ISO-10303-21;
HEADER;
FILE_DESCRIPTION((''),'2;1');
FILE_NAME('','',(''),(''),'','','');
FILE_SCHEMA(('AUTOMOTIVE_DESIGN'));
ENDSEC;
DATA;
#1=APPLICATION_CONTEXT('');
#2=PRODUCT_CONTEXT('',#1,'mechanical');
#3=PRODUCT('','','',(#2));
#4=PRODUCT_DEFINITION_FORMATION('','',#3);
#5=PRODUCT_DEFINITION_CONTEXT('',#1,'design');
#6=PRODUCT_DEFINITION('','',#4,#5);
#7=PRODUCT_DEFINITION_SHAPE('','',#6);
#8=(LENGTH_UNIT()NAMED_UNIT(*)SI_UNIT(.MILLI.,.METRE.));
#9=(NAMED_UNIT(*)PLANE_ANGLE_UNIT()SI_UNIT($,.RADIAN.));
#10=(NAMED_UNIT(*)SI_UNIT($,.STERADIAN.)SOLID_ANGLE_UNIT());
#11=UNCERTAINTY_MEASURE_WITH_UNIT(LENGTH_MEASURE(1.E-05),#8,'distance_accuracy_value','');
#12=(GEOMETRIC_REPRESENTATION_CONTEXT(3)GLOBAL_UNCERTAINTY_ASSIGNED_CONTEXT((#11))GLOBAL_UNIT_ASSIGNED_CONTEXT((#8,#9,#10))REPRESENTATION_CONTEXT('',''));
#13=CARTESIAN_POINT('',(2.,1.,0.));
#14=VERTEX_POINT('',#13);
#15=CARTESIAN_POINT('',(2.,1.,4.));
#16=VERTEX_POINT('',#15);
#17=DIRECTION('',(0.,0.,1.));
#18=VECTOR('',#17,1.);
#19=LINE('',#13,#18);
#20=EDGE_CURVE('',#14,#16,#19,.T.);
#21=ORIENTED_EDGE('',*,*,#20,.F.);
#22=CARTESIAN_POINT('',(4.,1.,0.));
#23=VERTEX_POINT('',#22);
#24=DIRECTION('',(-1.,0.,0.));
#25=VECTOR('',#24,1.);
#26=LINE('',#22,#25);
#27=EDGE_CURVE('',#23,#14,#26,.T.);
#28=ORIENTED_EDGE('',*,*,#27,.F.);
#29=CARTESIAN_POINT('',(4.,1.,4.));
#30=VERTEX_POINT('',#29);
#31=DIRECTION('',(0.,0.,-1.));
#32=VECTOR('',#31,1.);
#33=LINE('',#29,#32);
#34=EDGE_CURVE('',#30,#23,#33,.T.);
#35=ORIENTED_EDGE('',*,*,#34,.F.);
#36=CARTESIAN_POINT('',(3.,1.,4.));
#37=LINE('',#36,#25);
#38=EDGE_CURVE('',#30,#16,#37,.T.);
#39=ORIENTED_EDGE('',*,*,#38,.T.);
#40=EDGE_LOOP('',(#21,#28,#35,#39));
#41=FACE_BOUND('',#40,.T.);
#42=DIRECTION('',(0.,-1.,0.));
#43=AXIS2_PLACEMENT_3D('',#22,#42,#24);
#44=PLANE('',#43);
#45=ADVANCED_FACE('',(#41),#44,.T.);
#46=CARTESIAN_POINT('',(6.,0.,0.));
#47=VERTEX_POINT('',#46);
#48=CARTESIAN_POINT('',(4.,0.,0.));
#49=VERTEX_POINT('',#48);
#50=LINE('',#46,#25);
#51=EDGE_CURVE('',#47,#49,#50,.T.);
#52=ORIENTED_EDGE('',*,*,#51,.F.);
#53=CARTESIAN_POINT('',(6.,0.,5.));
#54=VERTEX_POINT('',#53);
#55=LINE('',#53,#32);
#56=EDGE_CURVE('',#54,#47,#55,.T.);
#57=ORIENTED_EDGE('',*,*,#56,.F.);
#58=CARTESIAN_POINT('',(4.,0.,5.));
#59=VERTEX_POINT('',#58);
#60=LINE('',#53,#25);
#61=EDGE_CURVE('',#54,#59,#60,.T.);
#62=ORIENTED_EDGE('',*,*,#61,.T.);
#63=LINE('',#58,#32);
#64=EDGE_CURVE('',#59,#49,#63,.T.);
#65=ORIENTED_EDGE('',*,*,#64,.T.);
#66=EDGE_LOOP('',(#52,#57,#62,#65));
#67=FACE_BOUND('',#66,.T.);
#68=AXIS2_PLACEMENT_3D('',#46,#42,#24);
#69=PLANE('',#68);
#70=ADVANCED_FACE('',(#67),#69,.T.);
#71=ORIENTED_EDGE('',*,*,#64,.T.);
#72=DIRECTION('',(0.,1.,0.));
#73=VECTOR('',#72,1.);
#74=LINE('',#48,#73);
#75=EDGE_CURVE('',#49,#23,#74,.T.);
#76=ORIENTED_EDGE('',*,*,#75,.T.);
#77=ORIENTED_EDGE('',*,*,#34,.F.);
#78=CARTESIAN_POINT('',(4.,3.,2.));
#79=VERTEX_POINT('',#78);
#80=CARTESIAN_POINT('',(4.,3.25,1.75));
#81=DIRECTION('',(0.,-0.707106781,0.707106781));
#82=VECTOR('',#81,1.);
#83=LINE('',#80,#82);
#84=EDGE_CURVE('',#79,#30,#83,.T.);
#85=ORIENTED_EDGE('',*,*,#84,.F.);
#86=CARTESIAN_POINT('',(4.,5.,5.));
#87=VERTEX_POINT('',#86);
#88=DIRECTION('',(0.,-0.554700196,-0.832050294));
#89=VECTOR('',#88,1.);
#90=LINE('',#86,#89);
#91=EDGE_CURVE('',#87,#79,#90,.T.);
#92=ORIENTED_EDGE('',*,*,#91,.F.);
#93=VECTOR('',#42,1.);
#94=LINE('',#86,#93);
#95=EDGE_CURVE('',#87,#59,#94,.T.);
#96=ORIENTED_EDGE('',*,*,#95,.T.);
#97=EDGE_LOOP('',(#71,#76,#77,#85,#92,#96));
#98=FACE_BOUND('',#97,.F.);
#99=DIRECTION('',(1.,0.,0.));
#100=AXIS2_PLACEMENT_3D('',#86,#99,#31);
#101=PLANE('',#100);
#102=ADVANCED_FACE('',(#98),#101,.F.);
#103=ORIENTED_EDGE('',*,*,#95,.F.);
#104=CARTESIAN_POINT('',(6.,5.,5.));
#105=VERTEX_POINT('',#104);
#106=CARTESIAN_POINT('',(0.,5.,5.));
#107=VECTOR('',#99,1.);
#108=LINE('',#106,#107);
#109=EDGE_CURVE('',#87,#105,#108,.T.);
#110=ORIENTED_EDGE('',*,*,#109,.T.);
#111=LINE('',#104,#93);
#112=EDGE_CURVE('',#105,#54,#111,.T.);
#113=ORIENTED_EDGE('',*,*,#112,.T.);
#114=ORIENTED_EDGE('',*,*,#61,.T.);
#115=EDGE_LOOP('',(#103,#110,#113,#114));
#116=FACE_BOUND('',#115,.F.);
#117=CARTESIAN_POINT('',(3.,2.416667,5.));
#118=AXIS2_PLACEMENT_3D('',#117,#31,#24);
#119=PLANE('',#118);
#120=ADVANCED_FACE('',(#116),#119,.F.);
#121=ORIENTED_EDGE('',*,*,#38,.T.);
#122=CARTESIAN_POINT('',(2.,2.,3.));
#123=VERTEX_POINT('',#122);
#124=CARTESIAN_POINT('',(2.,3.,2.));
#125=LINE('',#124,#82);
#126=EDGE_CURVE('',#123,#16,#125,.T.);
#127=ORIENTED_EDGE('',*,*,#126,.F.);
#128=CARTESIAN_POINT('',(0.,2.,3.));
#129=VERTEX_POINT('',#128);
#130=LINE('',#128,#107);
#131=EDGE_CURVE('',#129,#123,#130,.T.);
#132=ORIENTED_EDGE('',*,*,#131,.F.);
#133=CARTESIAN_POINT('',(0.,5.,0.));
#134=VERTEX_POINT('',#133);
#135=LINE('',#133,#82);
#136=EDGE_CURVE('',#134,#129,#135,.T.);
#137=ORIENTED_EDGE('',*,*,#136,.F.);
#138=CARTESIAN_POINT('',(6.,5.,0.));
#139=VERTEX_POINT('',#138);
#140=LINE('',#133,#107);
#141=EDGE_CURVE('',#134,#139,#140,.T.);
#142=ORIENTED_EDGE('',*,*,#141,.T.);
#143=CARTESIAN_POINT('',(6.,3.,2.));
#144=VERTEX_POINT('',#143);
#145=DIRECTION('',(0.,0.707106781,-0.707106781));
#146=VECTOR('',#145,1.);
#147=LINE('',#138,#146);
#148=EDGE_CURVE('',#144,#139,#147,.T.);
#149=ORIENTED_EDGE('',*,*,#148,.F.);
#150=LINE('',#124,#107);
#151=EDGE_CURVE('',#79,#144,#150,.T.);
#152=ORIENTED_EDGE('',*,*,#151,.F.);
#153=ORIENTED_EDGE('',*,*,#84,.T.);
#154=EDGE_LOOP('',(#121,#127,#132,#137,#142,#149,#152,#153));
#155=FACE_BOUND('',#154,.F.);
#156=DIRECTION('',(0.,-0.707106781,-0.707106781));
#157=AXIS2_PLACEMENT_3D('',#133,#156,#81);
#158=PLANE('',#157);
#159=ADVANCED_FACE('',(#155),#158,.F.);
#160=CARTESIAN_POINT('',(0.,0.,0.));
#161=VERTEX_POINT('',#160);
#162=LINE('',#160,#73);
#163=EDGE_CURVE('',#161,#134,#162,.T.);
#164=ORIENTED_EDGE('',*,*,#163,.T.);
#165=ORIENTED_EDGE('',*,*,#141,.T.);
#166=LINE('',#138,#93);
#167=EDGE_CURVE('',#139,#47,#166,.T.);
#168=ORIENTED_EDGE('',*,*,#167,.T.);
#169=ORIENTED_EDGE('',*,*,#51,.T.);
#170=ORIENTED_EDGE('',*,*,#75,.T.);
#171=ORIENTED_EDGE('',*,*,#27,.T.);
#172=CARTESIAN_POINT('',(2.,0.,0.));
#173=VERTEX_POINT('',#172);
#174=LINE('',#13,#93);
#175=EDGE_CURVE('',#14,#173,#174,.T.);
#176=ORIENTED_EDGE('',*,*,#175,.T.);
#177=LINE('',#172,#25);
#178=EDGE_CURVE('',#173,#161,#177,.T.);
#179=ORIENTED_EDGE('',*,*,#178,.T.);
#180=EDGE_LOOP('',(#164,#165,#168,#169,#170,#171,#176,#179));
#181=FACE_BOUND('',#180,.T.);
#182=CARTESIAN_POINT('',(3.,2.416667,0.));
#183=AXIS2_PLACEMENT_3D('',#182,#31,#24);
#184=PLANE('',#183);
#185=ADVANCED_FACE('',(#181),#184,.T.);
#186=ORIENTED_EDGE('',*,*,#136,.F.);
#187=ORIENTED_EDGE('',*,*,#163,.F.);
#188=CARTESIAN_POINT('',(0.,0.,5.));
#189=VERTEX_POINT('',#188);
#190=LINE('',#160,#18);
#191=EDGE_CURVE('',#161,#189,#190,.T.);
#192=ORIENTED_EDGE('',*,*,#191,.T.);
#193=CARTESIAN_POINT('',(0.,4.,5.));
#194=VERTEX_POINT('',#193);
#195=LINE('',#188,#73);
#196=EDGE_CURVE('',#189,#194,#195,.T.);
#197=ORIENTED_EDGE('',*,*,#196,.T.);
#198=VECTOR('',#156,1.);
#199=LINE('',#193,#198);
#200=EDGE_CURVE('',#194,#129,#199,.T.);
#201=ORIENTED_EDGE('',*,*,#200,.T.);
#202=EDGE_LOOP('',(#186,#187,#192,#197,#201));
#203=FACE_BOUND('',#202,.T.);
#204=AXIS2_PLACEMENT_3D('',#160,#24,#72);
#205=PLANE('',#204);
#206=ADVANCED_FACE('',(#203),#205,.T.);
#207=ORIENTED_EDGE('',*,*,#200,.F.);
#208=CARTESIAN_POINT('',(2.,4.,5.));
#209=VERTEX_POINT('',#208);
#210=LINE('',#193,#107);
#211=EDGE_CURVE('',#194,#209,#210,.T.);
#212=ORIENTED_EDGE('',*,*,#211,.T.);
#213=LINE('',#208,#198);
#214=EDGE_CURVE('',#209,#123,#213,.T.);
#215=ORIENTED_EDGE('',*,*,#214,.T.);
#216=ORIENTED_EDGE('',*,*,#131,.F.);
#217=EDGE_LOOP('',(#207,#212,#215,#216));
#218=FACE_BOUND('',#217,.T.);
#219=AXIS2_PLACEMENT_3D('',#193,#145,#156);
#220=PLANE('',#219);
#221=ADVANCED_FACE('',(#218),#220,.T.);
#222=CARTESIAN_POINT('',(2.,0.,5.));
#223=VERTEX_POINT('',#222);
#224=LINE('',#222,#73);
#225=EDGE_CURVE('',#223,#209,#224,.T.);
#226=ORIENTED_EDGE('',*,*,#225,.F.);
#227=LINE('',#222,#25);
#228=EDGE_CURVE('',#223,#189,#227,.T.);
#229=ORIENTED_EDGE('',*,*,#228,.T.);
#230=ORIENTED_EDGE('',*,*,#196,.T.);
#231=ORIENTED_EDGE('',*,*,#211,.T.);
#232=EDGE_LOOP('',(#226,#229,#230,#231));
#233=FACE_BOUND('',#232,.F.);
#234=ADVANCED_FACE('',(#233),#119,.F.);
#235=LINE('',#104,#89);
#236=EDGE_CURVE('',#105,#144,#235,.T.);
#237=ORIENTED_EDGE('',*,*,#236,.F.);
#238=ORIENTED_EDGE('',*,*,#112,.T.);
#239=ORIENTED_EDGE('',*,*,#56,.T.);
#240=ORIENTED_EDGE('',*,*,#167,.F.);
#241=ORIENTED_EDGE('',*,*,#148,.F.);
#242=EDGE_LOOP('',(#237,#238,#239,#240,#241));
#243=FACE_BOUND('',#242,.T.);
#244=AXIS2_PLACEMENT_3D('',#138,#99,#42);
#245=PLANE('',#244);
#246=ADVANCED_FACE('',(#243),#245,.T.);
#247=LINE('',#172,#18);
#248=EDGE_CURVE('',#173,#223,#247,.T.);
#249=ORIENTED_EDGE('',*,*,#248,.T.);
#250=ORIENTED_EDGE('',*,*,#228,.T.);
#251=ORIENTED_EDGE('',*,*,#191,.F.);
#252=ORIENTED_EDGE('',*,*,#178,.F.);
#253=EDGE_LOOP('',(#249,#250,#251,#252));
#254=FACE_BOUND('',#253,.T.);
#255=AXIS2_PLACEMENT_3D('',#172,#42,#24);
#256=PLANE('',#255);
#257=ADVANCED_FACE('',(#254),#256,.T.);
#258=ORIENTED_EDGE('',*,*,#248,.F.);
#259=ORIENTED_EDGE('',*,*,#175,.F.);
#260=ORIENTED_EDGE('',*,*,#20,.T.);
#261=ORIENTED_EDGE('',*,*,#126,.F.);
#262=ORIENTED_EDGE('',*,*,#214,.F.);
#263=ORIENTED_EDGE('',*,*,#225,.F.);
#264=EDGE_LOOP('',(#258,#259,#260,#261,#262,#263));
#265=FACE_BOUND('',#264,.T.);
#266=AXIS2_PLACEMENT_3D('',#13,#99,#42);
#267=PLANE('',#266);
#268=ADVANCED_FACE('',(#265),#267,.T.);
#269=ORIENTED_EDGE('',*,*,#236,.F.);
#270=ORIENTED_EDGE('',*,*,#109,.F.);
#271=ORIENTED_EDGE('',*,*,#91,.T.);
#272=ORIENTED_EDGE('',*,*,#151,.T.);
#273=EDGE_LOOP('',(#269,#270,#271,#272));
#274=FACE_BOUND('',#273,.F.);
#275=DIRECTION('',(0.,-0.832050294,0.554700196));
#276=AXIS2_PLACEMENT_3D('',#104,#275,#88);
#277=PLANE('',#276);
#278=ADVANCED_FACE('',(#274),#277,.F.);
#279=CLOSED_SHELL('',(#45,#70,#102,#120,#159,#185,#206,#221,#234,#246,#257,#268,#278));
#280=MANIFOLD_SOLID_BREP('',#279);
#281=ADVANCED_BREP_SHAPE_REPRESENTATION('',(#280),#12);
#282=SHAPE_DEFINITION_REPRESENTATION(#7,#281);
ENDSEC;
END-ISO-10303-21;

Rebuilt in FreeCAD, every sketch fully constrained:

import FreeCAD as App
import Part
import Sketcher

V = App.Vector
Q = App.Units.Quantity


def add_polygon(sketch, points):
    """Adds a closed chain of lines whose ends are joined by coincident constraints."""
    first, n = sketch.GeometryCount, len(points)
    for a, b in zip(points, points[1:] + points[:1]):
        sketch.addGeometry(Part.LineSegment(App.Vector(*a, 0), App.Vector(*b, 0)), False)
    for i in range(n):
        sketch.addConstraint(Sketcher.Constraint("Coincident", first + i, 2, first + (i + 1) % n, 1))

doc = App.newDocument("Part")
body = doc.addObject("PartDesign::Body", "Body")

# Sketch on XY plane
sketch1 = body.newObject("Sketcher::SketchObject", "Sketch")
sketch1.AttachmentSupport = (doc.getObject("XY_Plane"), [""])
sketch1.MapMode = "FlatFace"
add_polygon(sketch1, [(0, 5), (0, 0), (2, 0), (2, 1), (4, 1), (4, 0), (6, 0), (6, 5)])  # lines 0-7
sketch1.addConstraint(Sketcher.Constraint("Vertical", 0))
sketch1.addConstraint(Sketcher.Constraint("Horizontal", 1))
sketch1.addConstraint(Sketcher.Constraint("Vertical", 2))
sketch1.addConstraint(Sketcher.Constraint("Horizontal", 3))
sketch1.addConstraint(Sketcher.Constraint("Vertical", 4))
sketch1.addConstraint(Sketcher.Constraint("Horizontal", 5))
sketch1.addConstraint(Sketcher.Constraint("Vertical", 6))
sketch1.addConstraint(Sketcher.Constraint("Horizontal", 7))
sketch1.addConstraint(Sketcher.Constraint("Coincident", 0, 2, -1, 1))
sketch1.addConstraint(Sketcher.Constraint("PointOnObject", 4, 2, -1))
sketch1.addConstraint(Sketcher.Constraint("Equal", 1, 3))
sketch1.addConstraint(Sketcher.Constraint("Equal", 3, 5))
sketch1.addConstraint(Sketcher.Constraint("DistanceX", 1, 1, 1, 2, Q("2 mm")))
sketch1.addConstraint(Sketcher.Constraint("DistanceY", 0, 2, 0, 1, Q("5 mm")))
sketch1.addConstraint(Sketcher.Constraint("DistanceY", 2, 1, 2, 2, Q("1 mm")))
pad1 = body.newObject("PartDesign::Pad", "Pad")
pad1.Profile = sketch1
pad1.Length = 5

# Sketch on XZ plane
sketch2 = body.newObject("Sketcher::SketchObject", "Sketch001")
sketch2.AttachmentSupport = (doc.getObject("XZ_Plane"), [""])
sketch2.MapMode = "FlatFace"
sketch2.AttachmentOffset = App.Placement(V(0, 0, -5), App.Rotation())
add_polygon(sketch2, [(2, 4), (2, 5), (4, 5), (4, 4)])  # lines 0-3
sketch2.addConstraint(Sketcher.Constraint("Vertical", 0))
sketch2.addConstraint(Sketcher.Constraint("Horizontal", 1))
sketch2.addConstraint(Sketcher.Constraint("Vertical", 2))
sketch2.addConstraint(Sketcher.Constraint("Horizontal", 3))
sketch2.addConstraint(Sketcher.Constraint("DistanceX", 1, 1, 1, 2, Q("2 mm")))
sketch2.addConstraint(Sketcher.Constraint("DistanceY", 0, 1, 0, 2, Q("1 mm")))
sketch2.addConstraint(Sketcher.Constraint("DistanceX", -1, 1, 0, 2, Q("2 mm")))
sketch2.addConstraint(Sketcher.Constraint("DistanceY", -1, 1, 0, 2, Q("5 mm")))
pocket1 = body.newObject("PartDesign::Pocket", "Pocket")
pocket1.Profile = sketch2
pocket1.Length = 5
pocket1.Reversed = True

# Sketch on YZ plane
sketch3 = body.newObject("Sketcher::SketchObject", "Sketch002")
sketch3.AttachmentSupport = (doc.getObject("YZ_Plane"), [""])
sketch3.MapMode = "FlatFace"
add_polygon(sketch3, [(5, 0), (1, 4), (5, 4)])  # lines 0-2
sketch3.addConstraint(Sketcher.Constraint("Horizontal", 1))
sketch3.addConstraint(Sketcher.Constraint("Vertical", 2))
sketch3.addConstraint(Sketcher.Constraint("PointOnObject", 2, 2, -1))
sketch3.addConstraint(Sketcher.Constraint("Equal", 1, 2))
sketch3.addConstraint(Sketcher.Constraint("DistanceX", 1, 1, 1, 2, Q("4 mm")))
sketch3.addConstraint(Sketcher.Constraint("DistanceX", -1, 1, 0, 2, Q("1 mm")))
pocket2 = body.newObject("PartDesign::Pocket", "Pocket001")
pocket2.Profile = sketch3
pocket2.Length = 7
pocket2.Reversed = True

# Sketch on XZ plane
sketch4 = body.newObject("Sketcher::SketchObject", "Sketch003")
sketch4.AttachmentSupport = (doc.getObject("XZ_Plane"), [""])
sketch4.MapMode = "FlatFace"
add_polygon(sketch4, [(0, 5), (0, 3), (2, 3), (2, 5)])  # lines 0-3
add_polygon(sketch4, [(4, 5), (4, 2), (6, 2), (6, 5)])  # lines 4-7
sketch4.addConstraint(Sketcher.Constraint("Vertical", 0))
sketch4.addConstraint(Sketcher.Constraint("Horizontal", 1))
sketch4.addConstraint(Sketcher.Constraint("Vertical", 2))
sketch4.addConstraint(Sketcher.Constraint("Horizontal", 3))
sketch4.addConstraint(Sketcher.Constraint("Vertical", 4))
sketch4.addConstraint(Sketcher.Constraint("Horizontal", 5))
sketch4.addConstraint(Sketcher.Constraint("Vertical", 6))
sketch4.addConstraint(Sketcher.Constraint("Horizontal", 7))
sketch4.addConstraint(Sketcher.Constraint("PointOnObject", 0, 2, -2))
sketch4.addConstraint(Sketcher.Constraint("Horizontal", 3, 2, 6, 2))
sketch4.addConstraint(Sketcher.Constraint("Equal", 3, 5))
sketch4.addConstraint(Sketcher.Constraint("Equal", 7, 0))
sketch4.addConstraint(Sketcher.Constraint("DistanceX", 1, 1, 1, 2, Q("2 mm")))
sketch4.addConstraint(Sketcher.Constraint("DistanceY", 4, 2, 4, 1, Q("3 mm")))
sketch4.addConstraint(Sketcher.Constraint("DistanceY", -1, 1, 0, 2, Q("3 mm")))
sketch4.addConstraint(Sketcher.Constraint("DistanceX", -1, 1, 4, 2, Q("4 mm")))
pad2 = body.newObject("PartDesign::Pad", "Pad001")
pad2.Profile = sketch4
pad2.Length = 5
pad2.Reversed = True

# Sketch on YZ plane
sketch5 = body.newObject("Sketcher::SketchObject", "Sketch004")
sketch5.AttachmentSupport = (doc.getObject("YZ_Plane"), [""])
sketch5.MapMode = "FlatFace"
add_polygon(sketch5, [(4, 5), (5, 5), (5, 3), (2, 3)])  # lines 0-3
sketch5.addConstraint(Sketcher.Constraint("Horizontal", 0))
sketch5.addConstraint(Sketcher.Constraint("Vertical", 1))
sketch5.addConstraint(Sketcher.Constraint("Horizontal", 2))
sketch5.addConstraint(Sketcher.Constraint("DistanceX", 0, 1, 0, 2, Q("1 mm")))
sketch5.addConstraint(Sketcher.Constraint("DistanceX", 2, 2, 2, 1, Q("3 mm")))
sketch5.addConstraint(Sketcher.Constraint("DistanceY", 1, 2, 1, 1, Q("2 mm")))
sketch5.addConstraint(Sketcher.Constraint("DistanceX", -1, 1, 0, 2, Q("5 mm")))
sketch5.addConstraint(Sketcher.Constraint("DistanceY", -1, 1, 0, 2, Q("5 mm")))
pocket3 = body.newObject("PartDesign::Pocket", "Pocket002")
pocket3.Profile = sketch5
pocket3.Length = 2
pocket3.Reversed = True

# Sketch on YZ plane
sketch6 = body.newObject("Sketcher::SketchObject", "Sketch005")
sketch6.AttachmentSupport = (doc.getObject("YZ_Plane"), [""])
sketch6.MapMode = "FlatFace"
sketch6.AttachmentOffset = App.Placement(V(0, 0, 6), App.Rotation())
add_polygon(sketch6, [(5, 5), (3, 2), (5, 2)])  # lines 0-2
sketch6.addConstraint(Sketcher.Constraint("Horizontal", 1))
sketch6.addConstraint(Sketcher.Constraint("Vertical", 2))
sketch6.addConstraint(Sketcher.Constraint("DistanceX", 1, 1, 1, 2, Q("2 mm")))
sketch6.addConstraint(Sketcher.Constraint("DistanceY", 2, 1, 2, 2, Q("3 mm")))
sketch6.addConstraint(Sketcher.Constraint("DistanceX", -1, 1, 0, 2, Q("3 mm")))
sketch6.addConstraint(Sketcher.Constraint("DistanceY", -1, 1, 0, 2, Q("2 mm")))
pocket4 = body.newObject("PartDesign::Pocket", "Pocket003")
pocket4.Profile = sketch6
pocket4.Length = 2

doc.recompute()
